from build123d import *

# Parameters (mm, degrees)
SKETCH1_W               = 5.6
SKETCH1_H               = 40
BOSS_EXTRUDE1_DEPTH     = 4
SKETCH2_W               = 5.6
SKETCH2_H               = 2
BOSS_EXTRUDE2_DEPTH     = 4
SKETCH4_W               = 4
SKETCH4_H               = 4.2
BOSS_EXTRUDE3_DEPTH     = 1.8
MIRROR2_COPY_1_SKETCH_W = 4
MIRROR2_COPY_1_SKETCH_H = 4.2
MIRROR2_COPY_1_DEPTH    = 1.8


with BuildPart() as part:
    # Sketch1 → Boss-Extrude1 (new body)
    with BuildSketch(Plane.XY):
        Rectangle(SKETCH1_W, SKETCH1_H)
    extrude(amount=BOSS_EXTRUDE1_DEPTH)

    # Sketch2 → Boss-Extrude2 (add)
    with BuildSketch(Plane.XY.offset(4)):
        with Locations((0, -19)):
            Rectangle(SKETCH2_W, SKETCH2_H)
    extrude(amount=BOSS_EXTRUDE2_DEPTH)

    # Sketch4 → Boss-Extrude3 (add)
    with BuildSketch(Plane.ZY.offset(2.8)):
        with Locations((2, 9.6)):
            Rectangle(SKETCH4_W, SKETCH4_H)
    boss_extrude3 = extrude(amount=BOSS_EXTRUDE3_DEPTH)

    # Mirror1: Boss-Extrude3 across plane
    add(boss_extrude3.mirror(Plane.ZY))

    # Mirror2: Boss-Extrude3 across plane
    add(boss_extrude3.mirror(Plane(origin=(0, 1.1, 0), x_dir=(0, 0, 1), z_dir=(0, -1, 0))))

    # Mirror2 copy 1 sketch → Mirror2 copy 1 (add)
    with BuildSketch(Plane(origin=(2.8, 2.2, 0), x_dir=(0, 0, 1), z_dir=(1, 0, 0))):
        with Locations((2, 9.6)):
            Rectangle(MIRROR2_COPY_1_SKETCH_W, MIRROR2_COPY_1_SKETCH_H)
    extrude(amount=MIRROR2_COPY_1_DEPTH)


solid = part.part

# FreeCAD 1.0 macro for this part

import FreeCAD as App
import Part
import Sketcher
Q = App.Units.Quantity


def add_polygon(sketch, points):
    """Adds a closed chain of lines whose ends are joined by coincident constraints."""
    first, n = sketch.GeometryCount, len(points)
    for a, b in zip(points, points[1:] + points[:1]):
        sketch.addGeometry(Part.LineSegment(App.Vector(*a, 0), App.Vector(*b, 0)), False)
    for i in range(n):
        sketch.addConstraint(Sketcher.Constraint("Coincident", first + i, 2, first + (i + 1) % n, 1))

doc = App.newDocument("Part")
body = doc.addObject("PartDesign::Body", "Body")

# Sketch on XY plane
sketch1 = doc.addObject("Sketcher::SketchObject", "Sketch")
body.addObject(sketch1)
sketch1.AttachmentSupport = (doc.XY_Plane, [""])
sketch1.MapMode = "FlatFace"
add_polygon(sketch1, [(-3, 20), (-3, -20), (3, -20), (3, 20)])  # lines 0-3
sketch1.addConstraint([
    Sketcher.Constraint("Vertical", 0),
    Sketcher.Constraint("Horizontal", 1),
    Sketcher.Constraint("Vertical", 2),
    Sketcher.Constraint("Horizontal", 3),
    Sketcher.Constraint("Symmetric", 0, 2, 2, 2, -1, 1),
    Sketcher.Constraint("DistanceY", 0, 2, 0, 1, Q("40 mm")),
    Sketcher.Constraint("DistanceX", 1, 1, 1, 2, Q("5.6 mm")),
])
pad1 = doc.addObject("PartDesign::Pad", "Pad")
body.addObject(pad1)
pad1.Profile = sketch1
pad1.Length = 4

# Sketch on XY plane
sketch2 = doc.addObject("Sketcher::SketchObject", "Sketch001")
body.addObject(sketch2)
sketch2.AttachmentSupport = (doc.XY_Plane, [""])
sketch2.MapMode = "FlatFace"
sketch2.AttachmentOffset = App.Placement(App.Vector(0, 0, 4), App.Rotation())
add_polygon(sketch2, [(-2.8, -18), (-2.8, -20), (2.8, -20), (2.8, -18)])  # lines 0-3
sketch2.addConstraint([
    Sketcher.Constraint("Vertical", 0),
    Sketcher.Constraint("Horizontal", 1),
    Sketcher.Constraint("Vertical", 2),
    Sketcher.Constraint("Horizontal", 3),
    Sketcher.Constraint("DistanceY", 0, 2, 0, 1, Q("2 mm")),
    Sketcher.Constraint("DistanceX", 1, 1, 1, 2, Q("5.6 mm")),
    Sketcher.Constraint("DistanceY", 0, 2, -1, 1, Q("20 mm")),
    Sketcher.Constraint("DistanceX", 0, 2, -1, 1, Q("2.8 mm")),
])
pad2 = doc.addObject("PartDesign::Pad", "Pad001")
body.addObject(pad2)
pad2.Profile = sketch2
pad2.Length = 4

# Sketch on YZ plane
sketch3 = doc.addObject("Sketcher::SketchObject", "Sketch002")
body.addObject(sketch3)
sketch3.AttachmentSupport = (doc.YZ_Plane, [""])
sketch3.MapMode = "FlatFace"
sketch3.AttachmentOffset = App.Placement(App.Vector(0, 0, -2.8), App.Rotation())
add_polygon(sketch3, [(11.7, 0), (7.5, 0), (7.5, 4), (11.7, 4)])  # lines 0-3
sketch3.addConstraint([
    Sketcher.Constraint("Horizontal", 0),
    Sketcher.Constraint("Vertical", 1),
    Sketcher.Constraint("Horizontal", 2),
    Sketcher.Constraint("Vertical", 3),
    Sketcher.Constraint("PointOnObject", 0, 2, -1),
    Sketcher.Constraint("DistanceY", 1, 1, 1, 2, Q("4 mm")),
    Sketcher.Constraint("DistanceX", 0, 2, 0, 1, Q("4.2 mm")),
    Sketcher.Constraint("DistanceX", -1, 1, 0, 2, Q("7.5 mm")),
])
pad3 = doc.addObject("PartDesign::Pad", "Pad002")
body.addObject(pad3)
pad3.Profile = sketch3
pad3.Length = 1.8
pad3.Reversed = True
doc.recompute()

mirrored = doc.addObject("PartDesign::Mirrored", "Mirrored")
body.addObject(mirrored)
mirrored.Originals = [pad3]
mirrored.MirrorPlane = (doc.YZ_Plane, [""])
body.Tip = mirrored
doc.recompute()

datumplane = doc.addObject("PartDesign::Plane", "DatumPlane")
body.addObject(datumplane)
datumplane.AttachmentSupport = (doc.XZ_Plane, [""])
datumplane.MapMode = "FlatFace"
datumplane.AttachmentOffset = App.Placement(App.Vector(0, 0, -1.1), App.Rotation())
mirrored2 = doc.addObject("PartDesign::Mirrored", "Mirrored001")
body.addObject(mirrored2)
mirrored2.Originals = [pad3]
mirrored2.MirrorPlane = (datumplane, [""])
body.Tip = mirrored2

# Sketch on YZ plane
sketch4 = doc.addObject("Sketcher::SketchObject", "Sketch003")
body.addObject(sketch4)
sketch4.AttachmentSupport = (doc.YZ_Plane, [""])
sketch4.MapMode = "FlatFace"
sketch4.AttachmentOffset = App.Placement(App.Vector(0, 0, 2.8), App.Rotation())
add_polygon(sketch4, [(-9.5, 0), (-5.3, 0), (-5.3, 4), (-9.5, 4)])  # lines 0-3
sketch4.addConstraint([
    Sketcher.Constraint("Horizontal", 0),
    Sketcher.Constraint("Vertical", 1),
    Sketcher.Constraint("Horizontal", 2),
    Sketcher.Constraint("Vertical", 3),
    Sketcher.Constraint("PointOnObject", 0, 2, -1),
    Sketcher.Constraint("DistanceY", 1, 1, 1, 2, Q("4 mm")),
    Sketcher.Constraint("DistanceX", 0, 1, 0, 2, Q("4.2 mm")),
    Sketcher.Constraint("DistanceX", 0, 2, -1, 1, Q("5.3 mm")),
])
pad4 = doc.addObject("PartDesign::Pad", "Pad003")
body.addObject(pad4)
pad4.Profile = sketch4
pad4.Length = 1.8

doc.recompute()
